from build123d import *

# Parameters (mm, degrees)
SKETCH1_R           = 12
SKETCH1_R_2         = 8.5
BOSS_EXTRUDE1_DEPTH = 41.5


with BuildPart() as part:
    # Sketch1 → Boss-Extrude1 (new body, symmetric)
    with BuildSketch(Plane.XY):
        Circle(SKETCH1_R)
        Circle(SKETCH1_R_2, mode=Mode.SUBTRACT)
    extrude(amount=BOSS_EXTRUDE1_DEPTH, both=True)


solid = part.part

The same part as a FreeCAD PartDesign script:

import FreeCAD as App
import Part
import Sketcher
from FreeCAD import Vector

doc = App.newDocument("Part")
body = doc.addObject("PartDesign::Body", "Body")

# Sketch on XY plane
sketch1 = doc.addObject("Sketcher::SketchObject", "Sketch")
body.addObject(sketch1)
sketch1.AttachmentSupport = (doc.XY_Plane, [""])
sketch1.MapMode = "FlatFace"
sketch1.addGeometry([
    Part.Circle(Vector(0, 0, 0), Vector(0, 0, 1), 12),
    Part.Circle(Vector(0, 0, 0), Vector(0, 0, 1), 8),
], False)
sketch1.addConstraint([
    Sketcher.Constraint("Coincident", 0, 3, -1, 1),
    Sketcher.Constraint("Coincident", 1, 3, -1, 1),
    Sketcher.Constraint("Diameter", 0, 24.0),
    Sketcher.Constraint("Diameter", 1, 17.0),
])
pad1 = doc.addObject("PartDesign::Pad", "Pad")
body.addObject(pad1)
pad1.Profile = sketch1
pad1.Length = 83
pad1.Midplane = True

doc.recompute()
